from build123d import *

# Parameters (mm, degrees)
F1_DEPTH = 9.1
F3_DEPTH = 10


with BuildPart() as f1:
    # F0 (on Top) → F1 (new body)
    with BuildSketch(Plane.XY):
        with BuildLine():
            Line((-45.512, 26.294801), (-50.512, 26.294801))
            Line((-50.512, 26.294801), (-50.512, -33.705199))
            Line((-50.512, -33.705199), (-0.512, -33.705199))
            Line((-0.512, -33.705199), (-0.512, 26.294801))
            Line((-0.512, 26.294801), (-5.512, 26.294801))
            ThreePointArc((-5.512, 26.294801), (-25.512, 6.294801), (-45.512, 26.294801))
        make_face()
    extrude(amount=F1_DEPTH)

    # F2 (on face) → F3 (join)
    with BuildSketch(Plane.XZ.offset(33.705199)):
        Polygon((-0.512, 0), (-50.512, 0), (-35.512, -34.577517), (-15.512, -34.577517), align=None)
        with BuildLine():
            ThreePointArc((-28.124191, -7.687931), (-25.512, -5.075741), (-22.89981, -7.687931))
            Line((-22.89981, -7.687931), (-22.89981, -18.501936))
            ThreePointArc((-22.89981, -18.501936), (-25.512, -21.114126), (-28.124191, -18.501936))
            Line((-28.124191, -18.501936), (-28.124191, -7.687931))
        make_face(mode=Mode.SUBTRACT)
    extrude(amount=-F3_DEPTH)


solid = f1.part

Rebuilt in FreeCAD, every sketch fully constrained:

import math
import FreeCAD as App
import Part
import Sketcher
Q = App.Units.Quantity


def add_polygon(sketch, points):
    """Adds a closed chain of lines whose ends are joined by coincident constraints."""
    first, n = sketch.GeometryCount, len(points)
    for a, b in zip(points, points[1:] + points[:1]):
        sketch.addGeometry(Part.LineSegment(App.Vector(*a, 0), App.Vector(*b, 0)), False)
    for i in range(n):
        sketch.addConstraint(Sketcher.Constraint("Coincident", first + i, 2, first + (i + 1) % n, 1))

doc = App.newDocument("Part")
body = doc.addObject("PartDesign::Body", "Body")

# Sketch on XY plane
sketch1 = doc.addObject("Sketcher::SketchObject", "Sketch")
body.addObject(sketch1)
sketch1.AttachmentSupport = (doc.XY_Plane, [""])
sketch1.MapMode = "FlatFace"
sketch1.addGeometry(Part.LineSegment(App.Vector(-45.512, 26.294801, 0), App.Vector(-50.512, 26.294801, 0)), False)
sketch1.addGeometry(Part.LineSegment(App.Vector(-50.512, 26.294801, 0), App.Vector(-50.512, -33.705199, 0)), False)
sketch1.addGeometry(Part.LineSegment(App.Vector(-50.512, -33.705199, 0), App.Vector(-0.512, -33.705199, 0)), False)
sketch1.addGeometry(Part.LineSegment(App.Vector(-0.512, -33.705199, 0), App.Vector(-0.512, 26.294801, 0)), False)
sketch1.addGeometry(Part.LineSegment(App.Vector(-0.512, 26.294801, 0), App.Vector(-5.512, 26.294801, 0)), False)
sketch1.addGeometry(Part.ArcOfCircle(Part.Circle(App.Vector(-25.512, 26.294801, 0), App.Vector(0, 0, 1), 20), math.radians(180), math.radians(360)), False)
sketch1.addConstraint(Sketcher.Constraint("Coincident", 0, 2, 1, 1))
sketch1.addConstraint(Sketcher.Constraint("Coincident", 1, 2, 2, 1))
sketch1.addConstraint(Sketcher.Constraint("Coincident", 2, 2, 3, 1))
sketch1.addConstraint(Sketcher.Constraint("Coincident", 3, 2, 4, 1))
sketch1.addConstraint(Sketcher.Constraint("Coincident", 4, 2, 5, 2))
sketch1.addConstraint(Sketcher.Constraint("Coincident", 5, 1, 0, 1))
sketch1.addConstraint(Sketcher.Constraint("Horizontal", 0))
sketch1.addConstraint(Sketcher.Constraint("Vertical", 1))
sketch1.addConstraint(Sketcher.Constraint("Horizontal", 2))
sketch1.addConstraint(Sketcher.Constraint("Vertical", 3))
sketch1.addConstraint(Sketcher.Constraint("Horizontal", 4))
sketch1.addConstraint(Sketcher.Constraint("Horizontal", 5, 3, 0, 2))
sketch1.addConstraint(Sketcher.Constraint("Horizontal", 0, 2, 3, 2))
sketch1.addConstraint(Sketcher.Constraint("Equal", 0, 4))
sketch1.addConstraint(Sketcher.Constraint("Radius", 5, Q("20 mm")))
sketch1.addConstraint(Sketcher.Constraint("DistanceX", 0, 2, 0, 1, Q("5 mm")))
sketch1.addConstraint(Sketcher.Constraint("DistanceY", 1, 2, 1, 1, Q("60 mm")))
sketch1.addConstraint(Sketcher.Constraint("DistanceX", 5, 3, -1, 1, Q("25.512 mm")))
sketch1.addConstraint(Sketcher.Constraint("DistanceY", -1, 1, 5, 3, Q("26.294801 mm")))
pad1 = doc.addObject("PartDesign::Pad", "Pad")
body.addObject(pad1)
pad1.Profile = sketch1
pad1.Length = 9.1

# Sketch on XZ plane
sketch2 = doc.addObject("Sketcher::SketchObject", "Sketch001")
body.addObject(sketch2)
sketch2.AttachmentSupport = (doc.XZ_Plane, [""])
sketch2.MapMode = "FlatFace"
sketch2.AttachmentOffset = App.Placement(App.Vector(0, 0, 33.705199), App.Rotation())
add_polygon(sketch2, [(-0.512, 0), (-50.512, 0), (-35.512, -34.577517), (-15.512, -34.577517)])  # lines 0-3
sketch2.addGeometry(Part.LineSegment(App.Vector(-28.124191, -18.501936, 0), App.Vector(-28.124191, -7.687931, 0)), False)  # 4
sketch2.addGeometry(Part.ArcOfCircle(Part.Circle(App.Vector(-25.512, -7.687932, 0), App.Vector(0, 0, 1), 2.612191), math.radians(0.000011), math.radians(179.999989)), False)  # 5
sketch2.addGeometry(Part.LineSegment(App.Vector(-22.89981, -7.687931, 0), App.Vector(-22.89981, -18.501936, 0)), False)  # 6
sketch2.addGeometry(Part.ArcOfCircle(Part.Circle(App.Vector(-25.512, -18.501935, 0), App.Vector(0, 0, 1), 2.612191), math.radians(-179.999989), math.radians(-0.000011)), False)  # 7
sketch2.addConstraint(Sketcher.Constraint("Tangent", 4, 2, 5, 2))
sketch2.addConstraint(Sketcher.Constraint("Tangent", 5, 1, 6, 1))
sketch2.addConstraint(Sketcher.Constraint("Tangent", 6, 2, 7, 2))
sketch2.addConstraint(Sketcher.Constraint("Tangent", 7, 1, 4, 1))
sketch2.addConstraint(Sketcher.Constraint("Horizontal", 0))
sketch2.addConstraint(Sketcher.Constraint("Horizontal", 2))
sketch2.addConstraint(Sketcher.Constraint("Vertical", 4))
sketch2.addConstraint(Sketcher.Constraint("Vertical", 6))
sketch2.addConstraint(Sketcher.Constraint("PointOnObject", 0, 2, -1))
sketch2.addConstraint(Sketcher.Constraint("Equal", 1, 3))
sketch2.addConstraint(Sketcher.Constraint("DistanceX", 0, 2, 0, 1, Q("50 mm")))
sketch2.addConstraint(Sketcher.Constraint("DistanceX", 2, 1, 2, 2, Q("20 mm")))
sketch2.addConstraint(Sketcher.Constraint("DistanceX", 0, 2, 5, 3, Q("25 mm")))
sketch2.addConstraint(Sketcher.Constraint("Radius", 5, Q("2.612191 mm")))
sketch2.addConstraint(Sketcher.Constraint("DistanceX", 5, 3, -1, 1, Q("25.512 mm")))
sketch2.addConstraint(Sketcher.Constraint("Distance", 1, Q("37.69091 mm")))
sketch2.addConstraint(Sketcher.Constraint("DistanceY", 4, 1, 4, 2, Q("10.814005 mm")))
sketch2.addConstraint(Sketcher.Constraint("DistanceY", 5, 3, -1, 1, Q("7.687932 mm")))
pad2 = doc.addObject("PartDesign::Pad", "Pad001")
body.addObject(pad2)
pad2.Profile = sketch2
pad2.Length = 10
pad2.Reversed = True

doc.recompute()
